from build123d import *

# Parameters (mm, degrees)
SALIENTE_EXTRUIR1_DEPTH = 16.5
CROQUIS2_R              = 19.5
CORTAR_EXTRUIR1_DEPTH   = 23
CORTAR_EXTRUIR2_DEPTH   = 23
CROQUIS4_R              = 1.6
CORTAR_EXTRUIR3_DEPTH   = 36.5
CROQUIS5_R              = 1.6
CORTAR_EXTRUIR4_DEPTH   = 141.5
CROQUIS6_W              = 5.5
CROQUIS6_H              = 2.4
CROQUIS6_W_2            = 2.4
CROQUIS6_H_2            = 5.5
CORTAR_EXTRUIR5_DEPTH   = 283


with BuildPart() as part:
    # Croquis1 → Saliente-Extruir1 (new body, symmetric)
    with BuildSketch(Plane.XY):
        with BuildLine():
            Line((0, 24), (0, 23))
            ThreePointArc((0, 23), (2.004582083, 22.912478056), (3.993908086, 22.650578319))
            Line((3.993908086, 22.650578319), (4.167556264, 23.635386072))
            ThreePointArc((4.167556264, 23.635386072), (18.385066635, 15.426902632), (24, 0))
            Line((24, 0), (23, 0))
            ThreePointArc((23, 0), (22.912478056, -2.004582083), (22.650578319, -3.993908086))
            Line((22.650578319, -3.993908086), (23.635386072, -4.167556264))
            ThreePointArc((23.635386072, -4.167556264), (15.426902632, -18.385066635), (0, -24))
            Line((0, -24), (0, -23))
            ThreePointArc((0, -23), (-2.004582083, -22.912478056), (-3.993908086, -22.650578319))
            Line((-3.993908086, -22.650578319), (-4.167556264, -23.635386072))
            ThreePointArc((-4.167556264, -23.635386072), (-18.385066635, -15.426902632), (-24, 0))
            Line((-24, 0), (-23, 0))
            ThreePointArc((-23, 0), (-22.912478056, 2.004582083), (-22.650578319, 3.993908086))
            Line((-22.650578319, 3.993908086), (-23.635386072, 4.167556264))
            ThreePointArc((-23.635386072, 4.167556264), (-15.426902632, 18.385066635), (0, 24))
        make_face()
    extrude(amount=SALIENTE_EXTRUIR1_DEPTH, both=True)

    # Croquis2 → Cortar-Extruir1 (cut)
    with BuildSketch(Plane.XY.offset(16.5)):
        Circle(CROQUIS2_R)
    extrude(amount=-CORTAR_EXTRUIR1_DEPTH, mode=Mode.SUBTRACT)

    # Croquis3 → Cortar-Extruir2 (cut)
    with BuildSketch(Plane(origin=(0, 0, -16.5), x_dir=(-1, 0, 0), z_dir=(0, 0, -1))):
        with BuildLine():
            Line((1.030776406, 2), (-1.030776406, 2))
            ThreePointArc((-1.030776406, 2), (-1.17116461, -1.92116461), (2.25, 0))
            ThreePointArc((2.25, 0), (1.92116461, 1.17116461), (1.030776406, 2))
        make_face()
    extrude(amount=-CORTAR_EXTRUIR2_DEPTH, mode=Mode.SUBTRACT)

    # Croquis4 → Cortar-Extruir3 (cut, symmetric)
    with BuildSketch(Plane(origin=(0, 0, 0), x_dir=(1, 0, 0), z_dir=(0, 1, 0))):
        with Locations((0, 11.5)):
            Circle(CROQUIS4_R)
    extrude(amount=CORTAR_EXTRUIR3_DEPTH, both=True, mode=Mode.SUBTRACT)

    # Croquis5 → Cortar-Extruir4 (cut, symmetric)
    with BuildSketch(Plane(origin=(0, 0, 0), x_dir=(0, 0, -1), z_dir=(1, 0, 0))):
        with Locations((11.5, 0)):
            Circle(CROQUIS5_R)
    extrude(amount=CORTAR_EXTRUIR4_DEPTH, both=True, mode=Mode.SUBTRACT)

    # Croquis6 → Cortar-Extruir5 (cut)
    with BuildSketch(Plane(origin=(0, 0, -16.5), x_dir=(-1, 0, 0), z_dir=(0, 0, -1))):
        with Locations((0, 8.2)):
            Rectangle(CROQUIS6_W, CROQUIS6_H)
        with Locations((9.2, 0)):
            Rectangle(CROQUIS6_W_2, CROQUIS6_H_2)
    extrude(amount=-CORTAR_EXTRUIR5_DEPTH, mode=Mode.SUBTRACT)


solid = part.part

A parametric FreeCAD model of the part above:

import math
import FreeCAD as App
import Part
import Sketcher

V = App.Vector
Q = App.Units.Quantity


def add_polygon(sketch, points):
    """Adds a closed chain of lines whose ends are joined by coincident constraints."""
    first, n = sketch.GeometryCount, len(points)
    for a, b in zip(points, points[1:] + points[:1]):
        sketch.addGeometry(Part.LineSegment(App.Vector(*a, 0), App.Vector(*b, 0)), False)
    for i in range(n):
        sketch.addConstraint(Sketcher.Constraint("Coincident", first + i, 2, first + (i + 1) % n, 1))

doc = App.newDocument("Part")
body = doc.addObject("PartDesign::Body", "Body")

# Sketch on XY plane
sketch1 = doc.addObject("Sketcher::SketchObject", "Sketch")
body.addObject(sketch1)
sketch1.AttachmentSupport = (doc.XY_Plane, [""])
sketch1.MapMode = "FlatFace"
sketch1.addGeometry(Part.LineSegment(V(0, 23, 0), V(0, 24, 0)), False)
sketch1.addGeometry(Part.ArcOfCircle(Part.Circle(V(0, 0, 0), V(0, 0, 1), 24), math.radians(90), math.radians(170)), False)
sketch1.addGeometry(Part.LineSegment(V(-23.6, 4.2, 0), V(-22.7, 4, 0)), False)
sketch1.addGeometry(Part.ArcOfCircle(Part.Circle(V(0, 0, 0), V(0, 0, 1), 23), math.radians(170), math.radians(180)), False)
sketch1.addGeometry(Part.LineSegment(V(-23, 0, 0), V(-24, 0, 0)), False)
sketch1.addGeometry(Part.ArcOfCircle(Part.Circle(V(0, 0, 0), V(0, 0, 1), 24), math.radians(180), math.radians(260)), False)
sketch1.addGeometry(Part.LineSegment(V(-4.2, -23.6, 0), V(-4, -22.7, 0)), False)
sketch1.addGeometry(Part.ArcOfCircle(Part.Circle(V(0, 0, 0), V(0, 0, 1), 23), math.radians(-100), math.radians(-90)), False)
sketch1.addGeometry(Part.LineSegment(V(0, -23, 0), V(0, -24, 0)), False)
sketch1.addGeometry(Part.ArcOfCircle(Part.Circle(V(0, 0, 0), V(0, 0, 1), 24), math.radians(-90), math.radians(-10)), False)
sketch1.addGeometry(Part.LineSegment(V(23.6, -4.2, 0), V(22.7, -4, 0)), False)
sketch1.addGeometry(Part.ArcOfCircle(Part.Circle(V(0, 0, 0), V(0, 0, 1), 23), math.radians(-10), math.radians(0)), False)
sketch1.addGeometry(Part.LineSegment(V(23, 0, 0), V(24, 0, 0)), False)
sketch1.addGeometry(Part.ArcOfCircle(Part.Circle(V(0, 0, 0), V(0, 0, 1), 24), math.radians(0), math.radians(80)), False)
sketch1.addGeometry(Part.LineSegment(V(4.2, 23.6, 0), V(4, 22.7, 0)), False)
sketch1.addGeometry(Part.ArcOfCircle(Part.Circle(V(0, 0, 0), V(0, 0, 1), 23), math.radians(80), math.radians(90)), False)
sketch1.addConstraint(Sketcher.Constraint("Coincident", 0, 2, 1, 1))
sketch1.addConstraint(Sketcher.Constraint("Coincident", 1, 2, 2, 1))
sketch1.addConstraint(Sketcher.Constraint("Coincident", 2, 2, 3, 1))
sketch1.addConstraint(Sketcher.Constraint("Coincident", 3, 2, 4, 1))
sketch1.addConstraint(Sketcher.Constraint("Coincident", 4, 2, 5, 1))
sketch1.addConstraint(Sketcher.Constraint("Coincident", 5, 2, 6, 1))
sketch1.addConstraint(Sketcher.Constraint("Coincident", 6, 2, 7, 1))
sketch1.addConstraint(Sketcher.Constraint("Coincident", 7, 2, 8, 1))
sketch1.addConstraint(Sketcher.Constraint("Coincident", 8, 2, 9, 1))
sketch1.addConstraint(Sketcher.Constraint("Coincident", 9, 2, 10, 1))
sketch1.addConstraint(Sketcher.Constraint("Coincident", 10, 2, 11, 1))
sketch1.addConstraint(Sketcher.Constraint("Coincident", 11, 2, 12, 1))
sketch1.addConstraint(Sketcher.Constraint("Coincident", 12, 2, 13, 1))
sketch1.addConstraint(Sketcher.Constraint("Coincident", 13, 2, 14, 1))
sketch1.addConstraint(Sketcher.Constraint("Coincident", 14, 2, 15, 1))
sketch1.addConstraint(Sketcher.Constraint("Coincident", 15, 2, 0, 1))
sketch1.addConstraint(Sketcher.Constraint("Vertical", 0))
sketch1.addConstraint(Sketcher.Constraint("Horizontal", 4))
sketch1.addConstraint(Sketcher.Constraint("Vertical", 8))
sketch1.addConstraint(Sketcher.Constraint("Horizontal", 12))
sketch1.addConstraint(Sketcher.Constraint("Coincident", 1, 3, -1, 1))
sketch1.addConstraint(Sketcher.Constraint("Coincident", 3, 3, -1, 1))
sketch1.addConstraint(Sketcher.Constraint("Coincident", 5, 3, -1, 1))
sketch1.addConstraint(Sketcher.Constraint("Coincident", 7, 3, -1, 1))
sketch1.addConstraint(Sketcher.Constraint("Coincident", 9, 3, -1, 1))
sketch1.addConstraint(Sketcher.Constraint("Coincident", 11, 3, -1, 1))
sketch1.addConstraint(Sketcher.Constraint("Coincident", 13, 3, -1, 1))
sketch1.addConstraint(Sketcher.Constraint("Coincident", 15, 3, -1, 1))
sketch1.addConstraint(Sketcher.Constraint("Equal", 1, 5))
sketch1.addConstraint(Sketcher.Constraint("Equal", 3, 7))
sketch1.addConstraint(Sketcher.Constraint("Equal", 5, 9))
sketch1.addConstraint(Sketcher.Constraint("Equal", 7, 11))
sketch1.addConstraint(Sketcher.Constraint("Equal", 9, 13))
sketch1.addConstraint(Sketcher.Constraint("Equal", 11, 15))
sketch1.addConstraint(Sketcher.Constraint("PointOnObject", 0, 2, -2))
sketch1.addConstraint(Sketcher.Constraint("PointOnObject", 3, 2, -1))
sketch1.addConstraint(Sketcher.Constraint("PointOnObject", 7, 2, -2))
sketch1.addConstraint(Sketcher.Constraint("PointOnObject", 11, 2, -1))
sketch1.addConstraint(Sketcher.Constraint("Perpendicular", 2, 6))
sketch1.addConstraint(Sketcher.Constraint("Perpendicular", 6, 10))
sketch1.addConstraint(Sketcher.Constraint("Perpendicular", 10, 14))
sketch1.addConstraint(Sketcher.Constraint("Radius", 1, 24.0))
sketch1.addConstraint(Sketcher.Constraint("Radius", 3, 23.0))
sketch1.addConstraint(Sketcher.Constraint("Angle", 2, Q("-10 deg")))
sketch1.addConstraint(Sketcher.Constraint("DistanceX", 2, 2, -1, 1, 22.650578))
sketch1.addConstraint(Sketcher.Constraint("DistanceX", 6, 2, -1, 1, 3.993908))
sketch1.addConstraint(Sketcher.Constraint("DistanceX", -1, 1, 10, 2, 22.650578))
sketch1.addConstraint(Sketcher.Constraint("DistanceX", -1, 1, 14, 2, 3.993908))
pad1 = doc.addObject("PartDesign::Pad", "Pad")
body.addObject(pad1)
pad1.Profile = sketch1
pad1.Length = 33
pad1.Midplane = True

# Sketch on XY plane
sketch2 = doc.addObject("Sketcher::SketchObject", "Sketch001")
body.addObject(sketch2)
sketch2.AttachmentSupport = (doc.XY_Plane, [""])
sketch2.MapMode = "FlatFace"
sketch2.AttachmentOffset = App.Placement(V(0, 0, 16.5), App.Rotation())
sketch2.addGeometry(Part.Circle(V(0, 0, 0), V(0, 0, 1), 20), False)
sketch2.addConstraint(Sketcher.Constraint("Coincident", 0, 3, -1, 1))
sketch2.addConstraint(Sketcher.Constraint("Diameter", 0, 39.0))
pocket1 = doc.addObject("PartDesign::Pocket", "Pocket")
body.addObject(pocket1)
pocket1.Profile = sketch2
pocket1.Length = 23

# Sketch on XY plane
sketch3 = doc.addObject("Sketcher::SketchObject", "Sketch002")
body.addObject(sketch3)
sketch3.AttachmentSupport = (doc.XY_Plane, [""])
sketch3.MapMode = "FlatFace"
sketch3.AttachmentOffset = App.Placement(V(0, 0, -16.5), App.Rotation())
sketch3.addGeometry(Part.LineSegment(V(-1, 2, 0), V(1, 2, 0)), False)
sketch3.addGeometry(Part.ArcOfCircle(Part.Circle(V(0, 0, 0), V(0, 0, 1), 2.2), math.radians(180), math.radians(423)), False)
sketch3.addGeometry(Part.ArcOfCircle(Part.Circle(V(0, 0, 0), V(0, 0, 1), 2.2), math.radians(117), math.radians(180)), False)
sketch3.addConstraint(Sketcher.Constraint("Coincident", 0, 2, 1, 2))
sketch3.addConstraint(Sketcher.Constraint("Tangent", 1, 1, 2, 2))
sketch3.addConstraint(Sketcher.Constraint("Coincident", 2, 1, 0, 1))
sketch3.addConstraint(Sketcher.Constraint("Horizontal", 0))
sketch3.addConstraint(Sketcher.Constraint("Coincident", 1, 3, -1, 1))
sketch3.addConstraint(Sketcher.Constraint("Equal", 1, 2))
sketch3.addConstraint(Sketcher.Constraint("PointOnObject", 1, 1, -1))
sketch3.addConstraint(Sketcher.Constraint("Radius", 1, 2.25))
sketch3.addConstraint(Sketcher.Constraint("DistanceY", -1, 1, 0, 2, 2.0))
pocket2 = doc.addObject("PartDesign::Pocket", "Pocket001")
body.addObject(pocket2)
pocket2.Profile = sketch3
pocket2.Length = 23
pocket2.Reversed = True

# Sketch on XZ plane
sketch4 = doc.addObject("Sketcher::SketchObject", "Sketch003")
body.addObject(sketch4)
sketch4.AttachmentSupport = (doc.XZ_Plane, [""])
sketch4.MapMode = "FlatFace"
sketch4.addGeometry(Part.Circle(V(0, -11.5, 0), V(0, 0, 1), 1.6), False)
sketch4.addConstraint(Sketcher.Constraint("PointOnObject", 0, 3, -2))
sketch4.addConstraint(Sketcher.Constraint("Diameter", 0, 3.2))
sketch4.addConstraint(Sketcher.Constraint("DistanceY", 0, 3, -1, 1, 11.5))
pocket3 = doc.addObject("PartDesign::Pocket", "Pocket002")
body.addObject(pocket3)
pocket3.Profile = sketch4
pocket3.Length = 73
pocket3.Midplane = True

# Sketch on YZ plane
sketch5 = doc.addObject("Sketcher::SketchObject", "Sketch004")
body.addObject(sketch5)
sketch5.AttachmentSupport = (doc.YZ_Plane, [""])
sketch5.MapMode = "FlatFace"
sketch5.addGeometry(Part.Circle(V(0, -11.5, 0), V(0, 0, 1), 1.6), False)
sketch5.addConstraint(Sketcher.Constraint("PointOnObject", 0, 3, -2))
sketch5.addConstraint(Sketcher.Constraint("Diameter", 0, 3.2))
sketch5.addConstraint(Sketcher.Constraint("DistanceY", 0, 3, -1, 1, 11.5))
pocket4 = doc.addObject("PartDesign::Pocket", "Pocket003")
body.addObject(pocket4)
pocket4.Profile = sketch5
pocket4.Length = 283
pocket4.Midplane = True

# Sketch on XY plane
sketch6 = doc.addObject("Sketcher::SketchObject", "Sketch005")
body.addObject(sketch6)
sketch6.AttachmentSupport = (doc.XY_Plane, [""])
sketch6.MapMode = "FlatFace"
sketch6.AttachmentOffset = App.Placement(V(0, 0, -16.5), App.Rotation())
add_polygon(sketch6, [(2.8, 9.4), (2.8, 7), (-2.8, 7), (-2.8, 9.4)])  # lines 0-3
add_polygon(sketch6, [(-8, 2.8), (-8, -2.8), (-10.4, -2.8), (-10.4, 2.8)])  # lines 4-7
sketch6.addConstraint(Sketcher.Constraint("Vertical", 0))
sketch6.addConstraint(Sketcher.Constraint("Horizontal", 1))
sketch6.addConstraint(Sketcher.Constraint("Vertical", 2))
sketch6.addConstraint(Sketcher.Constraint("Horizontal", 3))
sketch6.addConstraint(Sketcher.Constraint("Vertical", 4))
sketch6.addConstraint(Sketcher.Constraint("Horizontal", 5))
sketch6.addConstraint(Sketcher.Constraint("Vertical", 6))
sketch6.addConstraint(Sketcher.Constraint("Horizontal", 7))
sketch6.addConstraint(Sketcher.Constraint("Equal", 7, 0))
sketch6.addConstraint(Sketcher.Constraint("Equal", 3, 4))
sketch6.addConstraint(Sketcher.Constraint("DistanceX", 1, 2, 1, 1, 5.5))
sketch6.addConstraint(Sketcher.Constraint("DistanceX", 5, 2, 5, 1, 2.4))
sketch6.addConstraint(Sketcher.Constraint("DistanceY", -1, 1, 0, 2, 7.0))
sketch6.addConstraint(Sketcher.Constraint("DistanceX", 4, 2, -1, 1, 8.0))
sketch6.addConstraint(Sketcher.Constraint("DistanceX", -1, 1, 0, 2, 2.75))
sketch6.addConstraint(Sketcher.Constraint("DistanceY", 4, 2, -1, 1, 2.75))
pocket5 = doc.addObject("PartDesign::Pocket", "Pocket004")
body.addObject(pocket5)
pocket5.Profile = sketch6
pocket5.Length = 283
pocket5.Reversed = True

doc.recompute()
